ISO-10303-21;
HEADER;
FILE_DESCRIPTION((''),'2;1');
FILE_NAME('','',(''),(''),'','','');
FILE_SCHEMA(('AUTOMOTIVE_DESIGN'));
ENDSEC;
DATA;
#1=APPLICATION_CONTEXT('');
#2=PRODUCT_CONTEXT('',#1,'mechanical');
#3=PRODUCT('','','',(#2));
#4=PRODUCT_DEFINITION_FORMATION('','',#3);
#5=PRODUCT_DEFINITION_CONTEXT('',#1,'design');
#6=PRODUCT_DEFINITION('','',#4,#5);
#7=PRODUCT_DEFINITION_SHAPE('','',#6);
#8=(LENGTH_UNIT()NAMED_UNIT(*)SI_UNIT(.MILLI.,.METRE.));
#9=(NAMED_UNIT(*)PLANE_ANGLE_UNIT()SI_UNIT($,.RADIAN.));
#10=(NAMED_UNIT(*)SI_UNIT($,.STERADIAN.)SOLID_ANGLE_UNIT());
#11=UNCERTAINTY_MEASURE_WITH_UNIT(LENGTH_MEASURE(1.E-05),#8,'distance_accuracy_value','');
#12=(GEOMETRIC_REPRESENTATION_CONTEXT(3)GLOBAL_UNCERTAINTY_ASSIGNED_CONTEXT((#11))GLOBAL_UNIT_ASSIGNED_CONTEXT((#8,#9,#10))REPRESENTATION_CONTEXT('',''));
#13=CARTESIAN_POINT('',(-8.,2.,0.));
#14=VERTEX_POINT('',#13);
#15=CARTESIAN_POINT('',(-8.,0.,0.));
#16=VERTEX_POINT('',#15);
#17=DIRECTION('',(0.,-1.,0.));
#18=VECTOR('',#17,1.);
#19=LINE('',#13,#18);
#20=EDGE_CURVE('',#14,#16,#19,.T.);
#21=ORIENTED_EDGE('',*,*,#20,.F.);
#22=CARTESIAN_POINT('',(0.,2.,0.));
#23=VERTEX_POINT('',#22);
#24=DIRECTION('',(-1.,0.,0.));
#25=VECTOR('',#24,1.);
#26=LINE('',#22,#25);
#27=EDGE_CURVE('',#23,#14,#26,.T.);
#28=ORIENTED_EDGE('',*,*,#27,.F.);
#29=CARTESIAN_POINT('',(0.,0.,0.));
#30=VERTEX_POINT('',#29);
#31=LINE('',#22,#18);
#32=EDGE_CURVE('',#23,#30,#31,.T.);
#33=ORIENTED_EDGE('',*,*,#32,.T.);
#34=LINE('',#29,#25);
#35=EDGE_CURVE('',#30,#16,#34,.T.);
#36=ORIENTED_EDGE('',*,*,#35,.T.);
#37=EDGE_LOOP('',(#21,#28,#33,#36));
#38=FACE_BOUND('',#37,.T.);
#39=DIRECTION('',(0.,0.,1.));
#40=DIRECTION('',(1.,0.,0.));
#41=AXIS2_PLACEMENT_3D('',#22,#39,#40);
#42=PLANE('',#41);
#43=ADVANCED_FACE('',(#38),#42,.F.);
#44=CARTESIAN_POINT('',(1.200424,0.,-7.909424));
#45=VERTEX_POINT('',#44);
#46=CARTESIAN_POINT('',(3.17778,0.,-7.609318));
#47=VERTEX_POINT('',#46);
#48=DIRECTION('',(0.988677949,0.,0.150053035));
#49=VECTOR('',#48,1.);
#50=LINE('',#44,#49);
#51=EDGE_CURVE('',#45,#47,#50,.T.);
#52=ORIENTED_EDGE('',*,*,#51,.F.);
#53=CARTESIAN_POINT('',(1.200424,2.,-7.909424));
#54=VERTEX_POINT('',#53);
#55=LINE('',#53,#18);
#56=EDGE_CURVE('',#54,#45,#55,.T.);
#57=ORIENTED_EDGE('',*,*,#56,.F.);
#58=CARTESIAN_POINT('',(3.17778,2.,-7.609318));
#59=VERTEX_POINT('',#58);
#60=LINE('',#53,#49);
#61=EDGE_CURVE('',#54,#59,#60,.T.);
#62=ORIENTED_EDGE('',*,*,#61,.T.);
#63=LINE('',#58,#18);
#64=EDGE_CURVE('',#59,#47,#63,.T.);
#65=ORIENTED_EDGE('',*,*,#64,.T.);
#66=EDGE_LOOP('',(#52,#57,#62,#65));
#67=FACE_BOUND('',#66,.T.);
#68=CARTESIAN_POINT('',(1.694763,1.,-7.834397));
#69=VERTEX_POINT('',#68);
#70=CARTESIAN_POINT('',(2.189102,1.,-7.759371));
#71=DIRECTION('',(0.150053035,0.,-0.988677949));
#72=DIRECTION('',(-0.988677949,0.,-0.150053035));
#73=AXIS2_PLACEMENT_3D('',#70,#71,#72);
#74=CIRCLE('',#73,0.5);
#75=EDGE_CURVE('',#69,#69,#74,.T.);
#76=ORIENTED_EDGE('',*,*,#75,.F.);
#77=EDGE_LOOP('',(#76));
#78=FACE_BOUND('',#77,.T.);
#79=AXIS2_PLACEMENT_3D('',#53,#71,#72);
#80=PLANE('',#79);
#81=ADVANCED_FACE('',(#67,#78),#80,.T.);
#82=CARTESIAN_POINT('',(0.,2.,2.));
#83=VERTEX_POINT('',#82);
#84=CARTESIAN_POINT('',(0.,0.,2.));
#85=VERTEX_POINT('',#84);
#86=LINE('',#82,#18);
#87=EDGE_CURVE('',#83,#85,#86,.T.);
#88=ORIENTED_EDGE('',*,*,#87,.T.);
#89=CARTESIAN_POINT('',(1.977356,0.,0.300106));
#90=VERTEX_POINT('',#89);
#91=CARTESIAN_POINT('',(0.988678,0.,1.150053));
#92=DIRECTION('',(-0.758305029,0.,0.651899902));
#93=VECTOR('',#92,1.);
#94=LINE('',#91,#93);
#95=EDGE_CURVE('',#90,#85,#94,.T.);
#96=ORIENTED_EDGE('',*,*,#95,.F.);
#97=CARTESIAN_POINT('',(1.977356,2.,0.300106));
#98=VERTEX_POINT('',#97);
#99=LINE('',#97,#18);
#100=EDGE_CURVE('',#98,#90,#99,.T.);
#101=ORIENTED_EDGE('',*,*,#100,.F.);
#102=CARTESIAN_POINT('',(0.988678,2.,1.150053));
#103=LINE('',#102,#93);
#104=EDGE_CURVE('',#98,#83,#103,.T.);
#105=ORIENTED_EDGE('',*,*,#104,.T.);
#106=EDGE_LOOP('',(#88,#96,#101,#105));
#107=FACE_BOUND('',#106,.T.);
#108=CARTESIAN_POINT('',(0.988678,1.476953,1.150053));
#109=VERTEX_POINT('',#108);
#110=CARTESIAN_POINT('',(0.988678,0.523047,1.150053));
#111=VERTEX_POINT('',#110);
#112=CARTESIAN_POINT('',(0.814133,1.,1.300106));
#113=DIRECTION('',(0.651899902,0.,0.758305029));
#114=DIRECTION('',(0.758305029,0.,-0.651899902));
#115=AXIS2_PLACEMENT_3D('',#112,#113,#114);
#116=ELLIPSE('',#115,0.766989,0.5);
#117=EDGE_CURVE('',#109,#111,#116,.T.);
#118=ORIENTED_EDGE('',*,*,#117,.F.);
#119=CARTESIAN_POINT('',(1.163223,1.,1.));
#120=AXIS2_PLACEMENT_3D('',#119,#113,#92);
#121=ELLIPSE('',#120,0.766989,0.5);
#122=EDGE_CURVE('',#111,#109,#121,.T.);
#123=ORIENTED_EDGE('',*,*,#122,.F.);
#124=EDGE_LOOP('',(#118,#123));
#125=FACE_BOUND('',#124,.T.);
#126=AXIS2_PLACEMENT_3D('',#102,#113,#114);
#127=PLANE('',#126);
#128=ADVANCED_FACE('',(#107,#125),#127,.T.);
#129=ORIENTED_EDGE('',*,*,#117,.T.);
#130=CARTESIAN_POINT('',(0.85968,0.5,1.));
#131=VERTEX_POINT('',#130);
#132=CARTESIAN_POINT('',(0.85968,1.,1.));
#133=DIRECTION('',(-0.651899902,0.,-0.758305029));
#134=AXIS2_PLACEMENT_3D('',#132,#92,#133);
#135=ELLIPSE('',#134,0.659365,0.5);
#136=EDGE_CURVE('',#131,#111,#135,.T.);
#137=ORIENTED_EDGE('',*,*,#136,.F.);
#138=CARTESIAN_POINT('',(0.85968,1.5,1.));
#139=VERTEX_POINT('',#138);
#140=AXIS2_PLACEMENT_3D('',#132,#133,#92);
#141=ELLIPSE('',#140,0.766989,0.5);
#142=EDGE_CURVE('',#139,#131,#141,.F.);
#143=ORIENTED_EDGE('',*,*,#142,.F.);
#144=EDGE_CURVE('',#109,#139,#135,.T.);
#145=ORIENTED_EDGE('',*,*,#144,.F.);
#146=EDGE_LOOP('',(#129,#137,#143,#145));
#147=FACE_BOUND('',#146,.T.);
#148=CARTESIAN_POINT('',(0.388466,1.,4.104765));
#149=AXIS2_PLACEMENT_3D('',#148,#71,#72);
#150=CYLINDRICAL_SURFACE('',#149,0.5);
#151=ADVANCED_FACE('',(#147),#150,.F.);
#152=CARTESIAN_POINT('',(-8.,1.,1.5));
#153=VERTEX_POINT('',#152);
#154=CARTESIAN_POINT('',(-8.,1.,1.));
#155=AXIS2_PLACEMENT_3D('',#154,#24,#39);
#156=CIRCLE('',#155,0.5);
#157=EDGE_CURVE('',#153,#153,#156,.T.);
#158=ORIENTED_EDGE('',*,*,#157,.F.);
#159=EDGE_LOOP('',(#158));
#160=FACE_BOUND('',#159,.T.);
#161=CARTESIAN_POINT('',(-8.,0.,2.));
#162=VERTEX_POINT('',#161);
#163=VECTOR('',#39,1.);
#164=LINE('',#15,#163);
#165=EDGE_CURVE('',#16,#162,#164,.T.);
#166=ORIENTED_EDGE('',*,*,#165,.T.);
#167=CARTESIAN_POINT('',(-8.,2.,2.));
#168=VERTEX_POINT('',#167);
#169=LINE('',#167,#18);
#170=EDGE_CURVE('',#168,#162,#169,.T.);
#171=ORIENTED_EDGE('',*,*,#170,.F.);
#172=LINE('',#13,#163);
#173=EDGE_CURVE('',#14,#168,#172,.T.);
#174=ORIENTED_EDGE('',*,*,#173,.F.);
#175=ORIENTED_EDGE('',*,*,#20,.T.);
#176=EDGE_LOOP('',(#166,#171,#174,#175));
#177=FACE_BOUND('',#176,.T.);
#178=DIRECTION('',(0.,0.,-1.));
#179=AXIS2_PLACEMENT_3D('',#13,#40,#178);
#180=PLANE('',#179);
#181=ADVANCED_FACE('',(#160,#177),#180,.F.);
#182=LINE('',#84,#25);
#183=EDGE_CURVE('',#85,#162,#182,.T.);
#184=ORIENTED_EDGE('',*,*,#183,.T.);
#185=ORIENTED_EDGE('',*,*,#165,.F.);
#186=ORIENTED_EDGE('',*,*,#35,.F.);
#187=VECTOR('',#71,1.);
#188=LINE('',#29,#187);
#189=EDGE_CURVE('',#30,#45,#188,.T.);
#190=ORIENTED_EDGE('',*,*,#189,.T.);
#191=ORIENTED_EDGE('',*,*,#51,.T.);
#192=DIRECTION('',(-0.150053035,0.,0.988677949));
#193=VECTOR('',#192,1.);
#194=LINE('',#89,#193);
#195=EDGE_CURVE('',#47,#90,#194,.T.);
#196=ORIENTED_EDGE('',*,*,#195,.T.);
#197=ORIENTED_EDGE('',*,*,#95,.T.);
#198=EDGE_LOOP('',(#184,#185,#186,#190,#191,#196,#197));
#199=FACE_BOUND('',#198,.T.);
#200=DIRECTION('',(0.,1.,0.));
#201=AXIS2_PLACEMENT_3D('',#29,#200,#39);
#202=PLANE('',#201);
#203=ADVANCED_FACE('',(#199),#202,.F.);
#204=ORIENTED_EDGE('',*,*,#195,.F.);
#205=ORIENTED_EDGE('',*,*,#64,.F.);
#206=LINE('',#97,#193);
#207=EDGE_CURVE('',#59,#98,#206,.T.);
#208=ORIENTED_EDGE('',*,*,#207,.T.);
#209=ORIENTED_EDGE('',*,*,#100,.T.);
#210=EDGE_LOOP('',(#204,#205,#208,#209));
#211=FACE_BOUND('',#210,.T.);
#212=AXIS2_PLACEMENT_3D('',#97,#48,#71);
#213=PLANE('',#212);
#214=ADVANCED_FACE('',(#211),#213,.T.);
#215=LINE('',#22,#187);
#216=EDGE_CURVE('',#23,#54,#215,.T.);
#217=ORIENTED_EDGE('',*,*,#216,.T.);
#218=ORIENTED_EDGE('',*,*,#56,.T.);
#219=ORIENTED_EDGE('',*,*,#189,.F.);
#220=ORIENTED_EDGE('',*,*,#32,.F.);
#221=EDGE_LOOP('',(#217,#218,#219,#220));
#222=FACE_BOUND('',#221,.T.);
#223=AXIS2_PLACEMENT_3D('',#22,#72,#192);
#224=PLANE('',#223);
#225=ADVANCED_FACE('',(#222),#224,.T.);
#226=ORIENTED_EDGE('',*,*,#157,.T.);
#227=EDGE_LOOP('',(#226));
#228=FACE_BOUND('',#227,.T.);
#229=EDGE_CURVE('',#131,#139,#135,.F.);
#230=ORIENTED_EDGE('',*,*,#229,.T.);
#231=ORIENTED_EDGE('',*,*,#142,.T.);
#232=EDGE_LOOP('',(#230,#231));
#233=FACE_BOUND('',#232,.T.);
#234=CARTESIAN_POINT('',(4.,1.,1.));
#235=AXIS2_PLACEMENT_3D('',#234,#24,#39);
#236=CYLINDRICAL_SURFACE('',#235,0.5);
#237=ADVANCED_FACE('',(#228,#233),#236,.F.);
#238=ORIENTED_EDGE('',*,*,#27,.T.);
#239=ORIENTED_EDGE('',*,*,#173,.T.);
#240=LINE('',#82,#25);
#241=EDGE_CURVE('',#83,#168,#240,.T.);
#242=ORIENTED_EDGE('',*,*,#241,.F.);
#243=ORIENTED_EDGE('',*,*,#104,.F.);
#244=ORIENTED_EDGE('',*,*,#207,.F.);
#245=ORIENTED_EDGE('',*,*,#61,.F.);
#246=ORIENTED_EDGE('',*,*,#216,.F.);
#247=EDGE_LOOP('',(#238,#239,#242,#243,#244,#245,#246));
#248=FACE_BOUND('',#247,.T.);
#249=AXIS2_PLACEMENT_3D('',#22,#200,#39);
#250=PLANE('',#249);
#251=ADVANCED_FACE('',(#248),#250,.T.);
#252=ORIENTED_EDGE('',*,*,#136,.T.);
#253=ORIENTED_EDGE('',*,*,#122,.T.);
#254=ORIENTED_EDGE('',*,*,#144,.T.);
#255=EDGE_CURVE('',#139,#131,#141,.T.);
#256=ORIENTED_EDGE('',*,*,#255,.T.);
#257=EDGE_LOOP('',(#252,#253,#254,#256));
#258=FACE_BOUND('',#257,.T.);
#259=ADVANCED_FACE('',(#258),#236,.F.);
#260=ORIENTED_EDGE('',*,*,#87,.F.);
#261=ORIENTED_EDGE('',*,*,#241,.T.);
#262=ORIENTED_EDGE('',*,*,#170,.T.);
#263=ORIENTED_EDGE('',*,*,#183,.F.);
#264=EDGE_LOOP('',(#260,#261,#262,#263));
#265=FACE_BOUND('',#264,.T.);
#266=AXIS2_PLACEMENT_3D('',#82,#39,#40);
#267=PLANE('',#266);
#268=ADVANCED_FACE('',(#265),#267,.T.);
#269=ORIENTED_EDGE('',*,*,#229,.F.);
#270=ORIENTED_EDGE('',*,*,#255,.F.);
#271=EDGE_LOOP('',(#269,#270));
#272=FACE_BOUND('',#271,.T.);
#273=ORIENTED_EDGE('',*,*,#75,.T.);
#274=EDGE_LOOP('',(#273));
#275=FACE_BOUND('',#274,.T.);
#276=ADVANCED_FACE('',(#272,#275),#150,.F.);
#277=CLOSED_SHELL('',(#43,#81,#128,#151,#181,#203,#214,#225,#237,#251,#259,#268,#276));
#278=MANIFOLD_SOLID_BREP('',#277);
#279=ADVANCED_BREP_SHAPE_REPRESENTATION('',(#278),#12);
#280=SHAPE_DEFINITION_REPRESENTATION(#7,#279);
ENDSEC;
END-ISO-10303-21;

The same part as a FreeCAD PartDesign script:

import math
import FreeCAD as App
import Part
import Sketcher

V = App.Vector
Q = App.Units.Quantity


def add_polygon(sketch, points):
    """Adds a closed chain of lines whose ends are joined by coincident constraints."""
    first, n = sketch.GeometryCount, len(points)
    for a, b in zip(points, points[1:] + points[:1]):
        sketch.addGeometry(Part.LineSegment(App.Vector(*a, 0), App.Vector(*b, 0)), False)
    for i in range(n):
        sketch.addConstraint(Sketcher.Constraint("Coincident", first + i, 2, first + (i + 1) % n, 1))

doc = App.newDocument("Part")
body = doc.addObject("PartDesign::Body", "Body")

sketch1 = doc.addObject("Sketcher::SketchObject", "Sketch")
body.addObject(sketch1)
sketch1.AttachmentSupport = (doc.XZ_Plane, [""])
sketch1.MapMode = "FlatFace"
add_polygon(sketch1, [(2, 0.3), (3.2, -7.6), (1.2, -7.9), (0, 0), (-8, 0), (-8, 2), (0, 2)])
sketch1.addConstraint([
    Sketcher.Constraint("Horizontal", 3),
    Sketcher.Constraint("Vertical", 4),
    Sketcher.Constraint("Horizontal", 5),
    Sketcher.Constraint("Coincident", 2, 2, -1, 1),
    Sketcher.Constraint("PointOnObject", 5, 2, -2),
    Sketcher.Constraint("Perpendicular", 0, 1),
    Sketcher.Constraint("Perpendicular", 1, 2),
    Sketcher.Constraint("Equal", 0, 2),
    Sketcher.Constraint("DistanceX", 3, 2, 3, 1, Q("8 mm")),
    Sketcher.Constraint("DistanceY", 4, 1, 4, 2, Q("2 mm")),
    Sketcher.Constraint("Distance", 0, Q("8 mm")),
    Sketcher.Constraint("Distance", 1, Q("2 mm")),
    Sketcher.Constraint("Angle", 0, Q("-81.37 deg")),
])
pad1 = doc.addObject("PartDesign::Pad", "Pad")
body.addObject(pad1)
pad1.Profile = sketch1
pad1.Length = 2
pad1.Reversed = True

sketch2 = doc.addObject("Sketcher::SketchObject", "Sketch001")
body.addObject(sketch2)
sketch2.AttachmentSupport = (doc.YZ_Plane, [""])
sketch2.MapMode = "FlatFace"
sketch2.AttachmentOffset = App.Placement(V(0, 0, -8), App.Rotation())
sketch2.addGeometry([
    Part.ArcOfCircle(Part.Circle(V(1, 1, 0), V(0, 0, 1), 0.5), math.radians(0), math.radians(90)),
    Part.ArcOfCircle(Part.Circle(V(1, 1, 0), V(0, 0, 1), 0.5), math.radians(-90), math.radians(0)),
    Part.ArcOfCircle(Part.Circle(V(1, 1, 0), V(0, 0, 1), 0.5), math.radians(180), math.radians(270)),
    Part.ArcOfCircle(Part.Circle(V(1, 1, 0), V(0, 0, 1), 0.5), math.radians(90), math.radians(180)),
], False)
sketch2.addConstraint([
    Sketcher.Constraint("Tangent", 0, 1, 1, 2),
    Sketcher.Constraint("Tangent", 1, 1, 2, 2),
    Sketcher.Constraint("Tangent", 2, 1, 3, 2),
    Sketcher.Constraint("Tangent", 3, 1, 0, 2),
    Sketcher.Constraint("Equal", 0, 1),
    Sketcher.Constraint("Horizontal", 3, 3, 0, 1),
    Sketcher.Constraint("Horizontal", 0, 1, 2, 1),
    Sketcher.Constraint("Vertical", 3, 3, 1, 1),
    Sketcher.Constraint("Vertical", 1, 1, 3, 1),
    Sketcher.Constraint("Radius", 0, Q("0.5 mm")),
    Sketcher.Constraint("DistanceX", -1, 1, 0, 3, Q("1 mm")),
    Sketcher.Constraint("DistanceY", -1, 1, 0, 3, Q("1 mm")),
])
pocket1 = doc.addObject("PartDesign::Pocket", "Pocket")
body.addObject(pocket1)
pocket1.Profile = sketch2
pocket1.Length = 12
pocket1.Reversed = True

sketch3 = doc.addObject("Sketcher::SketchObject", "Sketch002")
body.addObject(sketch3)
sketch3.Placement = App.Placement(V(1.200424, 0, -7.909424), App.Rotation(V(-0.988677949, 0, -0.150053035), V(0, 1, 0), V(0.150053035, 0, -0.988677949), "ZXY"))
sketch3.addGeometry([
    Part.ArcOfCircle(Part.Circle(V(-1, 1, 0), V(0, 0, 1), 0.5), math.radians(0), math.radians(90)),
    Part.ArcOfCircle(Part.Circle(V(-1, 1, 0), V(0, 0, 1), 0.5), math.radians(90), math.radians(180)),
    Part.ArcOfCircle(Part.Circle(V(-1, 1, 0), V(0, 0, 1), 0.5), math.radians(180), math.radians(270)),
    Part.ArcOfCircle(Part.Circle(V(-1, 1, 0), V(0, 0, 1), 0.5), math.radians(-90), math.radians(0)),
], False)
sketch3.addConstraint([
    Sketcher.Constraint("Tangent", 0, 2, 1, 1),
    Sketcher.Constraint("Tangent", 1, 2, 2, 1),
    Sketcher.Constraint("Tangent", 2, 2, 3, 1),
    Sketcher.Constraint("Tangent", 3, 2, 0, 1),
    Sketcher.Constraint("Equal", 0, 1),
    Sketcher.Constraint("Horizontal", 3, 3, 1, 2),
    Sketcher.Constraint("Horizontal", 1, 2, 3, 2),
    Sketcher.Constraint("Vertical", 3, 3, 0, 2),
    Sketcher.Constraint("Vertical", 0, 2, 2, 2),
    Sketcher.Constraint("Radius", 0, Q("0.5 mm")),
    Sketcher.Constraint("DistanceX", 0, 3, -1, 1, Q("1 mm")),
    Sketcher.Constraint("DistanceY", -1, 1, 0, 3, Q("1 mm")),
])
pocket2 = doc.addObject("PartDesign::Pocket", "Pocket001")
body.addObject(pocket2)
pocket2.Profile = sketch3
pocket2.Length = 12

doc.recompute()
